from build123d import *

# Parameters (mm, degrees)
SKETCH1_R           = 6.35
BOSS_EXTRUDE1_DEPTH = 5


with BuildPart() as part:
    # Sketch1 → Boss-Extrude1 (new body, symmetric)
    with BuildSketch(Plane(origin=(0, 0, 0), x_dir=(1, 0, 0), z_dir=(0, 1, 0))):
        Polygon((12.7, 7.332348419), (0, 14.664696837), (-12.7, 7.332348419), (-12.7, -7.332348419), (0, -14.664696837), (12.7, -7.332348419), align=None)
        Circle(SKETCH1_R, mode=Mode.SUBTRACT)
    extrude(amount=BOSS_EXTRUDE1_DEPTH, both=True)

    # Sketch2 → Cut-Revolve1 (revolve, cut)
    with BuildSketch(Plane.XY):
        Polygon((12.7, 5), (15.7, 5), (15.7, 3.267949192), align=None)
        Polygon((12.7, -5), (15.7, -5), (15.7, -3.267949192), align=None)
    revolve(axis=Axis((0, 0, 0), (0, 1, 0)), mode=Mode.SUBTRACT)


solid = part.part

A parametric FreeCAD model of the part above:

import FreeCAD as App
import Part
import Sketcher
from FreeCAD import Vector
Q = App.Units.Quantity


def add_polygon(sketch, points):
    """Adds a closed chain of lines whose ends are joined by coincident constraints."""
    first, n = sketch.GeometryCount, len(points)
    for a, b in zip(points, points[1:] + points[:1]):
        sketch.addGeometry(Part.LineSegment(App.Vector(*a, 0), App.Vector(*b, 0)), False)
    for i in range(n):
        sketch.addConstraint(Sketcher.Constraint("Coincident", first + i, 2, first + (i + 1) % n, 1))

doc = App.newDocument("Part")
body = doc.addObject("PartDesign::Body", "Body")

# Sketch on XZ plane
sketch1 = body.newObject("Sketcher::SketchObject", "Sketch")
sketch1.AttachmentSupport = (doc.getObject("XZ_Plane"), [""])
sketch1.MapMode = "FlatFace"
add_polygon(sketch1, [(12.7, -7.332348), (0, -14.664697), (-12.7, -7.332348), (-12.7, 7.332348), (0, 14.664697), (12.7, 7.332348)])  # lines 0-5
sketch1.addGeometry(Part.Circle(Vector(0, 0, 0), Vector(0, 0, 1), 6.35), False)  # 6
sketch1.addConstraint([
    Sketcher.Constraint("Vertical", 2),
    Sketcher.Constraint("Vertical", 5),
    Sketcher.Constraint("Coincident", 6, 3, -1, 1),
    Sketcher.Constraint("Symmetric", 0, 2, 3, 2, -1, 1),
    Sketcher.Constraint("Symmetric", 1, 2, 4, 2, -1, 1),
    Sketcher.Constraint("PointOnObject", 0, 2, -2),
    Sketcher.Constraint("Parallel", 0, 3),
    Sketcher.Constraint("Horizontal", 2, 2, 4, 2),
    Sketcher.Constraint("Diameter", 6, Q("12.7 mm")),
    Sketcher.Constraint("Angle", 0, Q("-150 deg")),
    Sketcher.Constraint("DistanceX", 1, 2, -1, 1, Q("12.7 mm")),
    Sketcher.Constraint("DistanceY", 2, 1, 2, 2, Q("14.664697 mm")),
])
pad1 = body.newObject("PartDesign::Pad", "Pad")
pad1.Profile = sketch1
pad1.Length = 10
pad1.Midplane = True

# Sketch on XY plane
sketch2 = body.newObject("Sketcher::SketchObject", "Sketch001")
sketch2.AttachmentSupport = (doc.getObject("XY_Plane"), [""])
sketch2.MapMode = "FlatFace"
add_polygon(sketch2, [(15.7, 5), (12.7, 5), (15.7, 3.267949)])  # lines 0-2
add_polygon(sketch2, [(12.7, -5), (15.7, -5), (15.7, -3.267949)])  # lines 3-5
sketch2.addConstraint([
    Sketcher.Constraint("Horizontal", 0),
    Sketcher.Constraint("Vertical", 2),
    Sketcher.Constraint("Horizontal", 3),
    Sketcher.Constraint("Vertical", 4),
    Sketcher.Constraint("Symmetric", 2, 2, 3, 2, -1),
    Sketcher.Constraint("Vertical", 0, 2, 5, 2),
    Sketcher.Constraint("Equal", 2, 4),
    Sketcher.Constraint("DistanceX", 0, 2, 0, 1, Q("3 mm")),
    Sketcher.Constraint("Angle", 1, Q("-30 deg")),
    Sketcher.Constraint("DistanceY", -1, 1, 0, 2, Q("5 mm")),
    Sketcher.Constraint("DistanceX", -1, 1, 0, 2, Q("12.7 mm")),
])
groove = body.newObject("PartDesign::Groove", "Groove")
groove.Profile = sketch2
groove.ReferenceAxis = (sketch2, ["V_Axis"])
groove.Angle = 360

doc.recompute()
